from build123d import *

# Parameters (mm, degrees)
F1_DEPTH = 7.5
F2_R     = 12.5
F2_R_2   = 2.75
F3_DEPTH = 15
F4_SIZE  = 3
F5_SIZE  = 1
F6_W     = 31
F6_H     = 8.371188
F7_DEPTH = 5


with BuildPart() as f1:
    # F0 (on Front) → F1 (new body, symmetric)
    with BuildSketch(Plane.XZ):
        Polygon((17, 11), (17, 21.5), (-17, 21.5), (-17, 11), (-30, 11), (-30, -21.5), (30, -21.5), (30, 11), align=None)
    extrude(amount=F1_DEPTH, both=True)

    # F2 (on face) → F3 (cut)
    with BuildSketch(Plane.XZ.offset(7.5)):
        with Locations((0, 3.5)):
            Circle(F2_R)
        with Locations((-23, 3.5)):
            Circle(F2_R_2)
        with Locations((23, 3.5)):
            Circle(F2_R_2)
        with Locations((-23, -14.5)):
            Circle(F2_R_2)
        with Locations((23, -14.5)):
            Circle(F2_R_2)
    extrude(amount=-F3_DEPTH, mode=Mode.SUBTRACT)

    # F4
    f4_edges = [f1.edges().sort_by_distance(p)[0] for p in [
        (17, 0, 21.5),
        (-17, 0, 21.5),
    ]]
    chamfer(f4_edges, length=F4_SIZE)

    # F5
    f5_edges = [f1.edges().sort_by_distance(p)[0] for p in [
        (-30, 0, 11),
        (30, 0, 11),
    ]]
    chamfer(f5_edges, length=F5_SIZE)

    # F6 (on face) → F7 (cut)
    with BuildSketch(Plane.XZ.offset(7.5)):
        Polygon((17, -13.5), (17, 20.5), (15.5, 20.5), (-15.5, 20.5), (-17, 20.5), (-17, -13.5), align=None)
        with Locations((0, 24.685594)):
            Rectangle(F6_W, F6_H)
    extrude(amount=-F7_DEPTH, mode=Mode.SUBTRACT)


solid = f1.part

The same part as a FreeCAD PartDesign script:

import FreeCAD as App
import Part
import Sketcher

V = App.Vector
Q = App.Units.Quantity


def edges_at(feature, points):
    """Names of the edges that pass closest to the given points."""
    edges = feature.Shape.Edges
    near = lambda p: min(range(len(edges)), key=lambda i: edges[i].distToShape(Part.Vertex(*p))[0])
    return sorted({f"Edge{near(p) + 1}" for p in points})


def add_polygon(sketch, points):
    """Adds a closed chain of lines whose ends are joined by coincident constraints."""
    first, n = sketch.GeometryCount, len(points)
    for a, b in zip(points, points[1:] + points[:1]):
        sketch.addGeometry(Part.LineSegment(App.Vector(*a, 0), App.Vector(*b, 0)), False)
    for i in range(n):
        sketch.addConstraint(Sketcher.Constraint("Coincident", first + i, 2, first + (i + 1) % n, 1))

doc = App.newDocument("Part")
body = doc.addObject("PartDesign::Body", "Body")

# Sketch on XZ plane
sketch1 = body.newObject("Sketcher::SketchObject", "Sketch")
sketch1.AttachmentSupport = (doc.getObject("XZ_Plane"), [""])
sketch1.MapMode = "FlatFace"
add_polygon(sketch1, [(17, 11), (17, 21.5), (-17, 21.5), (-17, 11), (-30, 11), (-30, -21.5), (30, -21.5), (30, 11)])  # lines 0-7
sketch1.addConstraint(Sketcher.Constraint("Vertical", 0))
sketch1.addConstraint(Sketcher.Constraint("Horizontal", 1))
sketch1.addConstraint(Sketcher.Constraint("Vertical", 2))
sketch1.addConstraint(Sketcher.Constraint("Horizontal", 3))
sketch1.addConstraint(Sketcher.Constraint("Vertical", 4))
sketch1.addConstraint(Sketcher.Constraint("Horizontal", 5))
sketch1.addConstraint(Sketcher.Constraint("Vertical", 6))
sketch1.addConstraint(Sketcher.Constraint("Horizontal", 7))
sketch1.addConstraint(Sketcher.Constraint("Symmetric", 3, 2, 6, 2, -2))
sketch1.addConstraint(Sketcher.Constraint("Equal", 3, 7))
sketch1.addConstraint(Sketcher.Constraint("DistanceX", 1, 2, 1, 1, Q("34 mm")))
sketch1.addConstraint(Sketcher.Constraint("DistanceX", 3, 2, 3, 1, Q("13 mm")))
sketch1.addConstraint(Sketcher.Constraint("DistanceY", 0, 1, 0, 2, Q("10.5 mm")))
sketch1.addConstraint(Sketcher.Constraint("DistanceY", 4, 2, 4, 1, Q("32.5 mm")))
sketch1.addConstraint(Sketcher.Constraint("DistanceY", -1, 1, 2, 2, Q("11 mm")))
pad1 = body.newObject("PartDesign::Pad", "Pad")
pad1.Profile = sketch1
pad1.Length = 15
pad1.Midplane = True

# Sketch on XZ plane
sketch2 = body.newObject("Sketcher::SketchObject", "Sketch001")
sketch2.AttachmentSupport = (doc.getObject("XZ_Plane"), [""])
sketch2.MapMode = "FlatFace"
sketch2.AttachmentOffset = App.Placement(V(0, 0, 7.5), App.Rotation())
sketch2.addGeometry(Part.Circle(V(0, 3.5, 0), V(0, 0, 1), 12.5), False)
sketch2.addGeometry(Part.Circle(V(-23, 3.5, 0), V(0, 0, 1), 2.75), False)
sketch2.addGeometry(Part.Circle(V(23, 3.5, 0), V(0, 0, 1), 2.75), False)
sketch2.addGeometry(Part.Circle(V(-23, -14.5, 0), V(0, 0, 1), 2.75), False)
sketch2.addGeometry(Part.Circle(V(23, -14.5, 0), V(0, 0, 1), 2.75), False)
sketch2.addConstraint(Sketcher.Constraint("Equal", 1, 2))
sketch2.addConstraint(Sketcher.Constraint("Equal", 2, 3))
sketch2.addConstraint(Sketcher.Constraint("Equal", 3, 4))
sketch2.addConstraint(Sketcher.Constraint("Symmetric", 1, 3, 2, 3, -2))
sketch2.addConstraint(Sketcher.Constraint("Symmetric", 3, 3, 4, 3, -2))
sketch2.addConstraint(Sketcher.Constraint("PointOnObject", 0, 3, -2))
sketch2.addConstraint(Sketcher.Constraint("Horizontal", 0, 3, 1, 3))
sketch2.addConstraint(Sketcher.Constraint("Vertical", 1, 3, 3, 3))
sketch2.addConstraint(Sketcher.Constraint("Diameter", 0, Q("25 mm")))
sketch2.addConstraint(Sketcher.Constraint("Diameter", 1, Q("5.5 mm")))
sketch2.addConstraint(Sketcher.Constraint("DistanceX", 1, 3, -1, 1, Q("23 mm")))
sketch2.addConstraint(Sketcher.Constraint("DistanceY", 3, 3, 1, 3, Q("18 mm")))
sketch2.addConstraint(Sketcher.Constraint("DistanceY", -1, 1, 0, 3, Q("3.5 mm")))
pocket1 = body.newObject("PartDesign::Pocket", "Pocket")
pocket1.Profile = sketch2
pocket1.Length = 15
doc.recompute()

chamfer = body.newObject("PartDesign::Chamfer", "Chamfer")
chamfer.Base = (pocket1, edges_at(pocket1, [(17, 0, 21.5), (-17, 0, 21.5)]))
chamfer.Size = 3
doc.recompute()

chamfer2 = body.newObject("PartDesign::Chamfer", "Chamfer001")
chamfer2.Base = (chamfer, edges_at(chamfer, [(-30, 0, 11), (30, 0, 11)]))
chamfer2.Size = 1

# Sketch on XZ plane
sketch3 = body.newObject("Sketcher::SketchObject", "Sketch002")
sketch3.AttachmentSupport = (doc.getObject("XZ_Plane"), [""])
sketch3.MapMode = "FlatFace"
sketch3.AttachmentOffset = App.Placement(V(0, 0, 7.5), App.Rotation())
add_polygon(sketch3, [(17, -13.5), (17, 20.5), (15.5, 20.5), (15.5, 28.871188), (-15.5, 28.871188), (-15.5, 20.5), (-17, 20.5), (-17, -13.5)])  # lines 0-7
sketch3.addConstraint(Sketcher.Constraint("Vertical", 0))
sketch3.addConstraint(Sketcher.Constraint("Horizontal", 1))
sketch3.addConstraint(Sketcher.Constraint("Vertical", 2))
sketch3.addConstraint(Sketcher.Constraint("Horizontal", 3))
sketch3.addConstraint(Sketcher.Constraint("Vertical", 4))
sketch3.addConstraint(Sketcher.Constraint("Horizontal", 5))
sketch3.addConstraint(Sketcher.Constraint("Vertical", 6))
sketch3.addConstraint(Sketcher.Constraint("Horizontal", 7))
sketch3.addConstraint(Sketcher.Constraint("Symmetric", 1, 2, 4, 2, -2))
sketch3.addConstraint(Sketcher.Constraint("Equal", 1, 5))
sketch3.addConstraint(Sketcher.Constraint("Equal", 7, 0))
sketch3.addConstraint(Sketcher.Constraint("DistanceX", 3, 2, 3, 1, Q("31 mm")))
sketch3.addConstraint(Sketcher.Constraint("DistanceX", 7, 1, 7, 2, Q("34 mm")))
sketch3.addConstraint(Sketcher.Constraint("DistanceY", -1, 1, 0, 2, Q("20.5 mm")))
sketch3.addConstraint(Sketcher.Constraint("DistanceY", 2, 1, 2, 2, Q("8.371188 mm")))
pocket2 = body.newObject("PartDesign::Pocket", "Pocket001")
pocket2.Profile = sketch3
pocket2.Length = 5

doc.recompute()
